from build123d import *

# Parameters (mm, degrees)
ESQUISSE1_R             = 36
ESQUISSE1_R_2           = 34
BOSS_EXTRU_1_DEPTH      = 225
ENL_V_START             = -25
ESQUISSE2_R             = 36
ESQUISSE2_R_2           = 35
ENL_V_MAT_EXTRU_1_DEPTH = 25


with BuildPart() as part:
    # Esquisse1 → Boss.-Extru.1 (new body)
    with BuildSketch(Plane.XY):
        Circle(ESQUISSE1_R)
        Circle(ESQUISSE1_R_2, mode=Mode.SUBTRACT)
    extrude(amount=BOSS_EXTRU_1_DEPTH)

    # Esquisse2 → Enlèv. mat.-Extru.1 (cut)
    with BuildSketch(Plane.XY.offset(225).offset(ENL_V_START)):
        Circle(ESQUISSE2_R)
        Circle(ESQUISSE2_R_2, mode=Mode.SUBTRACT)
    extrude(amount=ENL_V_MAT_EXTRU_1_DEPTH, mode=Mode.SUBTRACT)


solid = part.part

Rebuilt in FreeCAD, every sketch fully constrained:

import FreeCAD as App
import Part
import Sketcher

V = App.Vector

doc = App.newDocument("Part")
params = doc.addObject("Spreadsheet::Sheet", "Params")
for row, (alias, value) in enumerate([
    ("sketch1_diameter", "72 mm"),
    ("sketch1_diameter2", "68 mm"),
    ("pad1_length", "225 mm"),
    ("sketch2_diameter", "72 mm"),
    ("sketch2_diameter2", "70 mm"),
    ("pocket1_length", "25 mm"),
], start=1):
    params.set(f"A{row}", alias)
    params.set(f"B{row}", "=" + value)
    params.setAlias(f"B{row}", alias)

body = doc.addObject("PartDesign::Body", "Body")

# Sketch on XY plane
sketch1 = doc.addObject("Sketcher::SketchObject", "Sketch")
body.addObject(sketch1)
sketch1.AttachmentSupport = (doc.XY_Plane, [""])
sketch1.MapMode = "FlatFace"
sketch1.addGeometry([
    Part.Circle(V(0, 0, 0), V(0, 0, 1), 36),
    Part.Circle(V(0, 0, 0), V(0, 0, 1), 34),
], False)
sketch1.addConstraint([
    Sketcher.Constraint("Coincident", 0, 3, -1, 1),
    Sketcher.Constraint("Coincident", 1, 3, -1, 1),
    Sketcher.Constraint("Diameter", 0, 72.0),
    Sketcher.Constraint("Diameter", 1, 68.0),
])
sketch1.setExpression("Constraints[2]", "Params.sketch1_diameter")
sketch1.setExpression("Constraints[3]", "Params.sketch1_diameter2")
pad1 = doc.addObject("PartDesign::Pad", "Pad")
body.addObject(pad1)
pad1.Profile = sketch1
pad1.setExpression("Length", "Params.pad1_length")

# Sketch on XY plane
sketch2 = doc.addObject("Sketcher::SketchObject", "Sketch001")
body.addObject(sketch2)
sketch2.AttachmentSupport = (doc.XY_Plane, [""])
sketch2.MapMode = "FlatFace"
sketch2.AttachmentOffset = App.Placement(V(0, 0, 200), App.Rotation())
sketch2.addGeometry([
    Part.Circle(V(0, 0, 0), V(0, 0, 1), 36),
    Part.Circle(V(0, 0, 0), V(0, 0, 1), 35),
], False)
sketch2.addConstraint([
    Sketcher.Constraint("Coincident", 0, 3, -1, 1),
    Sketcher.Constraint("Coincident", 1, 3, -1, 1),
    Sketcher.Constraint("Diameter", 0, 72.0),
    Sketcher.Constraint("Diameter", 1, 70.0),
])
sketch2.setExpression("Constraints[2]", "Params.sketch2_diameter")
sketch2.setExpression("Constraints[3]", "Params.sketch2_diameter2")
pocket1 = doc.addObject("PartDesign::Pocket", "Pocket")
body.addObject(pocket1)
pocket1.Profile = sketch2
pocket1.setExpression("Length", "Params.pocket1_length")
pocket1.Reversed = True

doc.recompute()
